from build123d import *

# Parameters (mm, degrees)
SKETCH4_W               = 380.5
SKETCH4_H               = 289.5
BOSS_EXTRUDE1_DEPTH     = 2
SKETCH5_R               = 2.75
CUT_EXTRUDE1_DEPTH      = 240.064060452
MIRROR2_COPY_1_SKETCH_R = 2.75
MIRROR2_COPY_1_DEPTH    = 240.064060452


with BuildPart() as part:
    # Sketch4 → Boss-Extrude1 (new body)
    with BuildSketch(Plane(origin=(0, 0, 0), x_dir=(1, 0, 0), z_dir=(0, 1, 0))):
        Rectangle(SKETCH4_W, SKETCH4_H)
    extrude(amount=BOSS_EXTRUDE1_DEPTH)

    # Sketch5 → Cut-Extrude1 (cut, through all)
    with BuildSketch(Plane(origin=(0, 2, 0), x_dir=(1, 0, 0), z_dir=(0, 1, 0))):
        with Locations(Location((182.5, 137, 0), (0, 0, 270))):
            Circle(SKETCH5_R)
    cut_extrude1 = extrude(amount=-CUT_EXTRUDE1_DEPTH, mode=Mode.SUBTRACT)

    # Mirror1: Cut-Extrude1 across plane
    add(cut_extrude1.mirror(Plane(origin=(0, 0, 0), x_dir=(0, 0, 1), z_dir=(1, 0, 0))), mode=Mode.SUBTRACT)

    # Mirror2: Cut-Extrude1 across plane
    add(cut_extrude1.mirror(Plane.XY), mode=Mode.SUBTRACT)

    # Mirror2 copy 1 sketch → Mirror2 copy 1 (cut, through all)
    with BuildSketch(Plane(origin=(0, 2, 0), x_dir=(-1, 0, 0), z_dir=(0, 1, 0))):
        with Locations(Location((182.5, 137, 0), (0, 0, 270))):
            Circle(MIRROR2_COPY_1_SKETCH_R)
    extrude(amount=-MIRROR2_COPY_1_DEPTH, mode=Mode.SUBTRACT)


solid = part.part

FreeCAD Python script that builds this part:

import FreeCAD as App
import Part
import Sketcher

V = App.Vector
Q = App.Units.Quantity

doc = App.newDocument("Part")
body = doc.addObject("PartDesign::Body", "Body")

sketch1 = body.newObject("Sketcher::SketchObject", "Sketch")
sketch1.AttachmentSupport = (doc.getObject("XZ_Plane"), [""])
sketch1.MapMode = "FlatFace"
sketch1.addGeometry([
    Part.LineSegment(V(-190, -145, 0), V(-190, 145, 0)),
    Part.LineSegment(V(-190, 145, 0), V(190, 145, 0)),
    Part.LineSegment(V(190, 145, 0), V(190, -145, 0)),
    Part.LineSegment(V(190, -145, 0), V(-190, -145, 0)),
], False)
sketch1.addConstraint([
    Sketcher.Constraint("Coincident", 0, 2, 1, 1),
    Sketcher.Constraint("Coincident", 1, 2, 2, 1),
    Sketcher.Constraint("Coincident", 2, 2, 3, 1),
    Sketcher.Constraint("Coincident", 3, 2, 0, 1),
    Sketcher.Constraint("Vertical", 0),
    Sketcher.Constraint("Horizontal", 1),
    Sketcher.Constraint("Vertical", 2),
    Sketcher.Constraint("Horizontal", 3),
    Sketcher.Constraint("Symmetric", 0, 2, 2, 2, -1, 1),
    Sketcher.Constraint("DistanceX", 1, 1, 1, 2, Q("380.5 mm")),
    Sketcher.Constraint("DistanceY", 0, 1, 0, 2, Q("289.5 mm")),
])
pad1 = body.newObject("PartDesign::Pad", "Pad")
pad1.Profile = sketch1
pad1.Length = 2
pad1.Reversed = True

sketch2 = body.newObject("Sketcher::SketchObject", "Sketch001")
sketch2.AttachmentSupport = (doc.getObject("XZ_Plane"), [""])
sketch2.MapMode = "FlatFace"
sketch2.AttachmentOffset = App.Placement(V(0, 0, -2), App.Rotation())
sketch2.addGeometry(Part.Circle(V(182.5, -137, 0), V(0, 0, 1), 2.8), False)
sketch2.addConstraint([
    Sketcher.Constraint("Diameter", 0, Q("5.5 mm")),
    Sketcher.Constraint("DistanceY", 0, 3, -1, 1, Q("137 mm")),
    Sketcher.Constraint("DistanceX", -1, 1, 0, 3, Q("182.5 mm")),
])
pocket1 = body.newObject("PartDesign::Pocket", "Pocket")
pocket1.Profile = sketch2
pocket1.Type = "ThroughAll"
pocket1.Reversed = True
doc.recompute()

mirrored = body.newObject("PartDesign::Mirrored", "Mirrored")
mirrored.Originals = [pocket1]
mirrored.MirrorPlane = (doc.getObject("YZ_Plane"), [""])
body.Tip = mirrored
doc.recompute()

mirrored2 = body.newObject("PartDesign::Mirrored", "Mirrored001")
mirrored2.Originals = [pocket1]
mirrored2.MirrorPlane = (doc.getObject("XY_Plane"), [""])
body.Tip = mirrored2

sketch3 = body.newObject("Sketcher::SketchObject", "Sketch002")
sketch3.AttachmentSupport = (doc.getObject("XZ_Plane"), [""])
sketch3.MapMode = "FlatFace"
sketch3.AttachmentOffset = App.Placement(V(0, 0, -2), App.Rotation())
sketch3.addGeometry(Part.Circle(V(-182.5, 137, 0), V(0, 0, 1), 2.8), False)
sketch3.addConstraint([
    Sketcher.Constraint("Diameter", 0, Q("5.5 mm")),
    Sketcher.Constraint("DistanceY", -1, 1, 0, 3, Q("137 mm")),
    Sketcher.Constraint("DistanceX", 0, 3, -1, 1, Q("182.5 mm")),
])
pocket2 = body.newObject("PartDesign::Pocket", "Pocket001")
pocket2.Profile = sketch3
pocket2.Type = "ThroughAll"
pocket2.Reversed = True

doc.recompute()
